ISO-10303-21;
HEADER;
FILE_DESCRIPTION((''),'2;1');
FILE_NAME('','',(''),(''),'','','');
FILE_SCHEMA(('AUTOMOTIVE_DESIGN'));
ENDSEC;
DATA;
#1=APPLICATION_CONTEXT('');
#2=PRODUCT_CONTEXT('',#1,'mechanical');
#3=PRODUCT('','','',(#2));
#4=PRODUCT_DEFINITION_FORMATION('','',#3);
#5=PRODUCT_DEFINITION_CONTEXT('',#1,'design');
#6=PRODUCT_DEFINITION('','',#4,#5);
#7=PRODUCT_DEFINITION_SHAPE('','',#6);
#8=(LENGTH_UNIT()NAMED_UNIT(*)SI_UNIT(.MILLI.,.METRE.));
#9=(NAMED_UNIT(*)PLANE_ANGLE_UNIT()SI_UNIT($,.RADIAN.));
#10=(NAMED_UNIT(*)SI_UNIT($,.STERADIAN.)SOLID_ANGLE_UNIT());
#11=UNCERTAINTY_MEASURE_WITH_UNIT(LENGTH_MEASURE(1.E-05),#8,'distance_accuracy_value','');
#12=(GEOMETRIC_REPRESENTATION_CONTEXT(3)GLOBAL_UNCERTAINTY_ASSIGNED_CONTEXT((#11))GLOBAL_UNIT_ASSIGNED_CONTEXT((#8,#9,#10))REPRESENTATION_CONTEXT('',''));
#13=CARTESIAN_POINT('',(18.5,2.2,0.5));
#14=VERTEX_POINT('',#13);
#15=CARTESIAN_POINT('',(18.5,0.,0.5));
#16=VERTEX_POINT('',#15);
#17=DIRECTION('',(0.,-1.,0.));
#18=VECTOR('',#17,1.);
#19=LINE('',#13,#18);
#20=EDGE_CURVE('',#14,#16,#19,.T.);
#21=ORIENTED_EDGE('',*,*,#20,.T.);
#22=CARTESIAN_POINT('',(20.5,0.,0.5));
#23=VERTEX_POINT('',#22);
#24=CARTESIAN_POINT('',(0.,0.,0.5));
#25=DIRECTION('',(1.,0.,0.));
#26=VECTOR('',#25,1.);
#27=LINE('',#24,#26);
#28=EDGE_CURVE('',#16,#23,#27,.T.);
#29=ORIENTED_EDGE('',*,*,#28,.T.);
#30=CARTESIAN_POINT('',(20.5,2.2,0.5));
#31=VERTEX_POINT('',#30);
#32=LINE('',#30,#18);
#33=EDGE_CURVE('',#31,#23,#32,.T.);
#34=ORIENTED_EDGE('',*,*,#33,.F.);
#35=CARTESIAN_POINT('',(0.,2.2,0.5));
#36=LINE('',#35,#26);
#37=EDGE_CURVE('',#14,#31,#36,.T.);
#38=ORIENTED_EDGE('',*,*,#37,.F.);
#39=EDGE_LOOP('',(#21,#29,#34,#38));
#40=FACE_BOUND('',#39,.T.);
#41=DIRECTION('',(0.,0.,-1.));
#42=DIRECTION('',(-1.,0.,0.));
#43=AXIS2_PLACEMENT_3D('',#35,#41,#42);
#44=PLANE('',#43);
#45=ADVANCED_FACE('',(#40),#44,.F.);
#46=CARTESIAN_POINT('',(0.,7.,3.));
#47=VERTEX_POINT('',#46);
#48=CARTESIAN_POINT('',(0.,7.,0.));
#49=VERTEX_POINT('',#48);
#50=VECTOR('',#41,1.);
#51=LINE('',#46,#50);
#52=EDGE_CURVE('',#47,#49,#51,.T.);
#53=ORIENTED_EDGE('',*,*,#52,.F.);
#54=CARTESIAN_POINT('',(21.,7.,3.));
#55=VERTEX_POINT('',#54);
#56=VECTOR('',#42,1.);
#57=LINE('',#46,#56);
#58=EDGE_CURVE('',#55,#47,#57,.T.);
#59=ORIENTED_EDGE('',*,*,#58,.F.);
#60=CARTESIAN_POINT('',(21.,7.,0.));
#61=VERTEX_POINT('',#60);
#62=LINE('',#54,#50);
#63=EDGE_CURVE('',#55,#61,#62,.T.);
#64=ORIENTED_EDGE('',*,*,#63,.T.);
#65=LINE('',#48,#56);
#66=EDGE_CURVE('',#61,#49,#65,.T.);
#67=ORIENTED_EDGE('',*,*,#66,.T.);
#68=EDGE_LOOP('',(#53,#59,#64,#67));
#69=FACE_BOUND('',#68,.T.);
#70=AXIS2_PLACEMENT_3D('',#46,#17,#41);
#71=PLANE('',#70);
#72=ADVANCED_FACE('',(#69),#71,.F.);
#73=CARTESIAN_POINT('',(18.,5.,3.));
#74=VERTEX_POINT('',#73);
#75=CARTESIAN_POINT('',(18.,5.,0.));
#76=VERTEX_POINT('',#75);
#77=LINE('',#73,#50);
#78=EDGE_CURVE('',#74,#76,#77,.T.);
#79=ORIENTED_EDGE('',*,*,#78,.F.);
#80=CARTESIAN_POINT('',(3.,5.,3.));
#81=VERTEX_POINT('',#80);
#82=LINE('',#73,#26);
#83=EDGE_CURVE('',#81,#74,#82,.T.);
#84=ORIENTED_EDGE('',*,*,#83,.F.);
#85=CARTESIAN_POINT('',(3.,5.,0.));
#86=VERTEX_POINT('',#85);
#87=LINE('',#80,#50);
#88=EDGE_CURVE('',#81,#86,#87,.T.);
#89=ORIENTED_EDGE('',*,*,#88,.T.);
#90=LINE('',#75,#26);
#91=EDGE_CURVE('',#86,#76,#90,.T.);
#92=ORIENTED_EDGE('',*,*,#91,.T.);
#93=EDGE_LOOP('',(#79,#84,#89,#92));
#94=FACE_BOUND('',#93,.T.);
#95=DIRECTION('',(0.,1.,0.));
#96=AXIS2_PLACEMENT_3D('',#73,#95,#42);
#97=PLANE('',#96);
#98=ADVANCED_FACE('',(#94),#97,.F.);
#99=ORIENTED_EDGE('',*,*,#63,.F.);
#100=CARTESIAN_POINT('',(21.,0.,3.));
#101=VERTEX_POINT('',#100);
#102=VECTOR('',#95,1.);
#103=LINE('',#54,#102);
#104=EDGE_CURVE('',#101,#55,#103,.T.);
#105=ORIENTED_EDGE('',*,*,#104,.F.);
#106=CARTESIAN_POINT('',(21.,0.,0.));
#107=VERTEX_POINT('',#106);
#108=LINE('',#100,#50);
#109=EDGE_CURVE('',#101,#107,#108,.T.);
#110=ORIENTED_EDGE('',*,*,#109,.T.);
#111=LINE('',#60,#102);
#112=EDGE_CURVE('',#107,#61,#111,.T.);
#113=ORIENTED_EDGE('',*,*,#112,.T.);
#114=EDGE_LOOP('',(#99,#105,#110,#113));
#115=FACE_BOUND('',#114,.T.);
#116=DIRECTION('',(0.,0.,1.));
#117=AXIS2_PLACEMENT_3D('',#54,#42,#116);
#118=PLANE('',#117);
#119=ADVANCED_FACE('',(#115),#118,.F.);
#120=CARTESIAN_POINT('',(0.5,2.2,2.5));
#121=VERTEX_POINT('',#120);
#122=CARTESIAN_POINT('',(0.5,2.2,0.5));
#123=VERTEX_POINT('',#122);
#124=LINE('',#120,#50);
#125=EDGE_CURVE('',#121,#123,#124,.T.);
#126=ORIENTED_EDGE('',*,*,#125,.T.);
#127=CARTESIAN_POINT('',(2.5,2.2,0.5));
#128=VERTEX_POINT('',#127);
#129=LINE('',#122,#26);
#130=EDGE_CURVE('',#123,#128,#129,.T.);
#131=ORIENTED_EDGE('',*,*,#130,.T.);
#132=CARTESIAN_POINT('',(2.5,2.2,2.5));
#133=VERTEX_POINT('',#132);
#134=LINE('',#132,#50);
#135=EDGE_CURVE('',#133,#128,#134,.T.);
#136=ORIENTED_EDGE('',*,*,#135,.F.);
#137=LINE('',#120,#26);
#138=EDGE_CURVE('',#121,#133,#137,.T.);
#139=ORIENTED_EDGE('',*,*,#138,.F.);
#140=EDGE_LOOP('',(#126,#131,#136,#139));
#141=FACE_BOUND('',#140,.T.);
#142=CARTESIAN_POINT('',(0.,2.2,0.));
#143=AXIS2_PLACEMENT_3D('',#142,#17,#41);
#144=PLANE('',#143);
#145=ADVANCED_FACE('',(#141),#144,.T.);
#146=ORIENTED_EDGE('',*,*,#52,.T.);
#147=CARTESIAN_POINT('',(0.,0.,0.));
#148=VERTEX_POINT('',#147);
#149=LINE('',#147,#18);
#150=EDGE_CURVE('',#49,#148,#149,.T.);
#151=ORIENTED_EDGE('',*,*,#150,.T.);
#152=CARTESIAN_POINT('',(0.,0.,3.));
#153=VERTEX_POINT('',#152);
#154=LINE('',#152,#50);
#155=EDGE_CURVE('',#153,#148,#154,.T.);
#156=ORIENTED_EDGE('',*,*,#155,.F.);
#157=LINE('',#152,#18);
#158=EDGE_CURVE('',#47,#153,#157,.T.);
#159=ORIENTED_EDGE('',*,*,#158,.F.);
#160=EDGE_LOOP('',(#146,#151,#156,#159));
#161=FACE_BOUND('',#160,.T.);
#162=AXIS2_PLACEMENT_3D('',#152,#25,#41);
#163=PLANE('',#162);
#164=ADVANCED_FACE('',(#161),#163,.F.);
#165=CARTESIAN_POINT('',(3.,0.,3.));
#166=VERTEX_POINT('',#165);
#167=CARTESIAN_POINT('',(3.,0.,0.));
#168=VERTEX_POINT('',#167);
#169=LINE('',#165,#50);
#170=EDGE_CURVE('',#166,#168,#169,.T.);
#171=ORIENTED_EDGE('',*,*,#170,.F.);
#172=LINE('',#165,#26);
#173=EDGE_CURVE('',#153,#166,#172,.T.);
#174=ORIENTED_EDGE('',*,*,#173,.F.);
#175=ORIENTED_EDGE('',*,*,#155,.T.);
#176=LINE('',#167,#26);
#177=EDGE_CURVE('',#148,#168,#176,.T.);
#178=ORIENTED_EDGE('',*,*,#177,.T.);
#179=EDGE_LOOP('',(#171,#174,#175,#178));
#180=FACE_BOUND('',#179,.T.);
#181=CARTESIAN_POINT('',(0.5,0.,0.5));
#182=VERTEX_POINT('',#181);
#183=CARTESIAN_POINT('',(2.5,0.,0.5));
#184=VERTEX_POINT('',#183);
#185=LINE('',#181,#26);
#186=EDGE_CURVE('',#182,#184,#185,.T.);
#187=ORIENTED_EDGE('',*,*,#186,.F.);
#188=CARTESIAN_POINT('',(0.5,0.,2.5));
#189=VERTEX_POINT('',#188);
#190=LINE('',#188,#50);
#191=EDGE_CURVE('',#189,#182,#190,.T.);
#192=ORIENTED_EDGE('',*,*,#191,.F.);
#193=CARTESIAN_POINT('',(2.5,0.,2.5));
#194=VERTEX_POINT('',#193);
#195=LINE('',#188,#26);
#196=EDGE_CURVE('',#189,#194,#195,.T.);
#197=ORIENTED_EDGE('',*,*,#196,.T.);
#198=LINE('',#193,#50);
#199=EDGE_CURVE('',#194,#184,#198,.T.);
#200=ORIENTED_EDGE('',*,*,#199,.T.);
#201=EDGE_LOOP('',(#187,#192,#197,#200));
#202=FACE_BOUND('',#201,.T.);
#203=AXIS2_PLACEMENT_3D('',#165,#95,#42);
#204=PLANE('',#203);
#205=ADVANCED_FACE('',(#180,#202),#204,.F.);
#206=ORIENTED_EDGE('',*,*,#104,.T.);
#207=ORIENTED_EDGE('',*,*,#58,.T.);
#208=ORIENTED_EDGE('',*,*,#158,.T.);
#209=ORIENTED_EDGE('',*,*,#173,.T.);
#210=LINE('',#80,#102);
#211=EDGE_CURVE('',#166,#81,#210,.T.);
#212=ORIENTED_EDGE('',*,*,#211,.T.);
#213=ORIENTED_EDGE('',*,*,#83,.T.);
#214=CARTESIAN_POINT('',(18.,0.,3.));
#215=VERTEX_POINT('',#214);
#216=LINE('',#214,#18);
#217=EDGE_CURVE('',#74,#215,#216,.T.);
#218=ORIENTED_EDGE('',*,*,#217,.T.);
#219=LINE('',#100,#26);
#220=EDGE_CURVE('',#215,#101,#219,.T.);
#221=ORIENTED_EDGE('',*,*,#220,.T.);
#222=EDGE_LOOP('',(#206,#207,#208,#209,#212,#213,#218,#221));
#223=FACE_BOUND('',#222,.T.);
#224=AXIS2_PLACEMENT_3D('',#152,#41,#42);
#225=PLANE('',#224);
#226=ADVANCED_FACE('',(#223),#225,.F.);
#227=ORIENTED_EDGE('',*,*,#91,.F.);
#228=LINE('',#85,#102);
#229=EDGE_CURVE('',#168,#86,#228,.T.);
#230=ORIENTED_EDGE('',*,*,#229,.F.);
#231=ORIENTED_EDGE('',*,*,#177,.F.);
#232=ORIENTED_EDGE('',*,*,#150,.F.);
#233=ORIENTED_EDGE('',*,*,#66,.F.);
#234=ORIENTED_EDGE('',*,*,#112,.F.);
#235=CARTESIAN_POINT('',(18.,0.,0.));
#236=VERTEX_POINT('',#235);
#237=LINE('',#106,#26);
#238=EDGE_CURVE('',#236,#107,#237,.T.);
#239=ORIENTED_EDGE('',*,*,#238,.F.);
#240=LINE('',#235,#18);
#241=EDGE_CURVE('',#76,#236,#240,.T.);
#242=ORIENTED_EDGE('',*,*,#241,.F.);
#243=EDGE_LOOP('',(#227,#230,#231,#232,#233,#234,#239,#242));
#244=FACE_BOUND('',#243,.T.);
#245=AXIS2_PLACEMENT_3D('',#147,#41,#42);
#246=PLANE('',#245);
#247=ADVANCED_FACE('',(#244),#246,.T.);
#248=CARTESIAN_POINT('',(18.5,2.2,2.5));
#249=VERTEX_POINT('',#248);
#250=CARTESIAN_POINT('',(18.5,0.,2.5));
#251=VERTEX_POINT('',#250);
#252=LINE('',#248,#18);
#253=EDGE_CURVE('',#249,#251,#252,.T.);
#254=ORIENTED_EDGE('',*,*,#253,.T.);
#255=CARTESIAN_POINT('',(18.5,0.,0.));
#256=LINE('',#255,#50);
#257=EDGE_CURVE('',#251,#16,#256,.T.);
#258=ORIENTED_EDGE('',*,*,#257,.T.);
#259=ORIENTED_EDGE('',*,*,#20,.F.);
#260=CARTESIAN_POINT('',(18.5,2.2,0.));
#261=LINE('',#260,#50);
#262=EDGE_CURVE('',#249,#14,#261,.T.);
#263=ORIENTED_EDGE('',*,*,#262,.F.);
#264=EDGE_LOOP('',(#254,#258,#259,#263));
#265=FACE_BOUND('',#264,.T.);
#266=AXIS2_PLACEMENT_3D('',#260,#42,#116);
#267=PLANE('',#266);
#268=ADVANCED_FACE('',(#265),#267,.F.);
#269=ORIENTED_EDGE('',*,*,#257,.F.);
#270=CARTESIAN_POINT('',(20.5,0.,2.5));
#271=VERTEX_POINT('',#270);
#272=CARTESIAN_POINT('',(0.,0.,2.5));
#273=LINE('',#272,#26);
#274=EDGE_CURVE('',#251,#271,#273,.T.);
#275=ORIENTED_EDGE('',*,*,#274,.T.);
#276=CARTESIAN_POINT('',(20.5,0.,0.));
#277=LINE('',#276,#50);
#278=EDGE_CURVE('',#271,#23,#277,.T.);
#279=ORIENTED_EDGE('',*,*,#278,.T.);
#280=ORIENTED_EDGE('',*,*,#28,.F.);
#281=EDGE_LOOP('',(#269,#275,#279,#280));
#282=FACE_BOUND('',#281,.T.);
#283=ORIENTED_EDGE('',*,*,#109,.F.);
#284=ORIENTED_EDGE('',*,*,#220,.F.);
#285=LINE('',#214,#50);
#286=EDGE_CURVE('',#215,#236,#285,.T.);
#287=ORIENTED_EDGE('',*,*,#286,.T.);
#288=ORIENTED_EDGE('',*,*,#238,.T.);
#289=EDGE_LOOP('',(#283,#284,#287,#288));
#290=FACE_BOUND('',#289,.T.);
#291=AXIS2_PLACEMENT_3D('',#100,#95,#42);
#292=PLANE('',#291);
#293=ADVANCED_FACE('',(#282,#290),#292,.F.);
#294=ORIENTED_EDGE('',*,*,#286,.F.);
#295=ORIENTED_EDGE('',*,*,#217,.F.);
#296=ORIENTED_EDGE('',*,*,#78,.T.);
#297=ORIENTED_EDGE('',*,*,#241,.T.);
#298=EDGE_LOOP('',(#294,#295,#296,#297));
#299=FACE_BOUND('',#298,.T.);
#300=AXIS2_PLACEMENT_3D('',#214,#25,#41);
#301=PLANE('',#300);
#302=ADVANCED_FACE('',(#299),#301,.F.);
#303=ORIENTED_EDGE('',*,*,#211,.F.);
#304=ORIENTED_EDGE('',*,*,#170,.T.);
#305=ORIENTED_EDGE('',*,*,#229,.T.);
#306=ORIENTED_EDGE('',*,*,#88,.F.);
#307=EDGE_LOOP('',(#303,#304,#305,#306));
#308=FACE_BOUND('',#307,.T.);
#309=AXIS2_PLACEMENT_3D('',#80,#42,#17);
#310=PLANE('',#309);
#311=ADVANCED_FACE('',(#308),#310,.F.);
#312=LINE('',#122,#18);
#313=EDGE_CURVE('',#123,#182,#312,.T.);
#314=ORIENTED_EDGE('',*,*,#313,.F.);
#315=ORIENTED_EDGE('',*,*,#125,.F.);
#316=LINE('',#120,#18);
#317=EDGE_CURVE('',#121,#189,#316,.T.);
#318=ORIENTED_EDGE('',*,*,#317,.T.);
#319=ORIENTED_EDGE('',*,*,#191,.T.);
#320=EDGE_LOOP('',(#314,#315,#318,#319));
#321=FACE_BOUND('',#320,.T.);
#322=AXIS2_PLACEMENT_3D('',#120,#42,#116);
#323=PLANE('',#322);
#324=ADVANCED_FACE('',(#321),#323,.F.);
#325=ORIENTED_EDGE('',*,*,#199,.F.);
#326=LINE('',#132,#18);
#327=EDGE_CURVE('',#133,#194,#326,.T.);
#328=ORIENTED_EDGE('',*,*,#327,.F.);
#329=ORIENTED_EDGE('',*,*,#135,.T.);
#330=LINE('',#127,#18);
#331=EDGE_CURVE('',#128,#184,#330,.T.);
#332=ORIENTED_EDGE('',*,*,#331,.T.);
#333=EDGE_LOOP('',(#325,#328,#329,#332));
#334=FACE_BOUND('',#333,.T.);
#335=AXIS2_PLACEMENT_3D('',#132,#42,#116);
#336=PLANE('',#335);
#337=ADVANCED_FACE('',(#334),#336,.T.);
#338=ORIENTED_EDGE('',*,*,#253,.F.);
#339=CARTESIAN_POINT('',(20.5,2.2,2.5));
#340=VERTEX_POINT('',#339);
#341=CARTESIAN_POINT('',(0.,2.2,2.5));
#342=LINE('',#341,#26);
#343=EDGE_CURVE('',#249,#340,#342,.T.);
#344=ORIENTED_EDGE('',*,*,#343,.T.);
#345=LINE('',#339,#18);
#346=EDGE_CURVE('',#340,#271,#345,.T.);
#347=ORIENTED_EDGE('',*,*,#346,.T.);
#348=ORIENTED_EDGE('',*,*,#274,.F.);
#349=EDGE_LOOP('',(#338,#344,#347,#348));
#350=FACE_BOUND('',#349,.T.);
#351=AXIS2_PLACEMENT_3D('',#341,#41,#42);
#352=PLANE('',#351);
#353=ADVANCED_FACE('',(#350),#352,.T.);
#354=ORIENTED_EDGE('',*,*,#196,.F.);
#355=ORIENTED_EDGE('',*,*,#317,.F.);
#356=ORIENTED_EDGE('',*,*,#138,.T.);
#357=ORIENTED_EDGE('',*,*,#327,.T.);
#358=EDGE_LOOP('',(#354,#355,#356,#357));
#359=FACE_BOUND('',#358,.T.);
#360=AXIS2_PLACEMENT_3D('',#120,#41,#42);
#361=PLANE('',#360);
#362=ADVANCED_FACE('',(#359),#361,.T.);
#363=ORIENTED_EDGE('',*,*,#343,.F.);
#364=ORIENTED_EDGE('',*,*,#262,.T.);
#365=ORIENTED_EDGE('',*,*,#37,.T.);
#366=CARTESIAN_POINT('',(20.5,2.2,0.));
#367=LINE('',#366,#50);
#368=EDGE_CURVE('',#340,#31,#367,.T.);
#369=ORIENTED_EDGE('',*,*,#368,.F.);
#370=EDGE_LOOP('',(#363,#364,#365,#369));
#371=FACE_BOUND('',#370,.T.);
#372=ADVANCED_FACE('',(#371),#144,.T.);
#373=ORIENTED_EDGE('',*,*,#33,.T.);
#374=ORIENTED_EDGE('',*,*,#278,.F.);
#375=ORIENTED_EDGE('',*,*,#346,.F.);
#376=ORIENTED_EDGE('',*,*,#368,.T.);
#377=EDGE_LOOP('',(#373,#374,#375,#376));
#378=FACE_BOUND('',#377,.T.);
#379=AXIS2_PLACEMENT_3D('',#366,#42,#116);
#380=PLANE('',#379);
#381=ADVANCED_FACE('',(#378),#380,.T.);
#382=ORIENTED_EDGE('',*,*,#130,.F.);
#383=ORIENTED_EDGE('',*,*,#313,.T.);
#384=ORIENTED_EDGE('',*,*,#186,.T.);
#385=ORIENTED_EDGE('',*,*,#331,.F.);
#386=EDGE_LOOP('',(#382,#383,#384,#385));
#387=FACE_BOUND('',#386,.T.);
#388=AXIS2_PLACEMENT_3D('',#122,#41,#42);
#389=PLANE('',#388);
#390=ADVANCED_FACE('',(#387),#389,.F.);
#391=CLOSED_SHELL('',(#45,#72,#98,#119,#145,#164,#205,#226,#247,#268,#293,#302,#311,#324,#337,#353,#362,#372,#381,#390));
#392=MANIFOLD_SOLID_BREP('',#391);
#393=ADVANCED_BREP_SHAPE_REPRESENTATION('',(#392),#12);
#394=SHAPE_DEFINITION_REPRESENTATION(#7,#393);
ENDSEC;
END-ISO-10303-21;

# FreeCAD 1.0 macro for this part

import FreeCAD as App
import Part
import Sketcher


def add_polygon(sketch, points):
    """Adds a closed chain of lines whose ends are joined by coincident constraints."""
    first, n = sketch.GeometryCount, len(points)
    for a, b in zip(points, points[1:] + points[:1]):
        sketch.addGeometry(Part.LineSegment(App.Vector(*a, 0), App.Vector(*b, 0)), False)
    for i in range(n):
        sketch.addConstraint(Sketcher.Constraint("Coincident", first + i, 2, first + (i + 1) % n, 1))

doc = App.newDocument("Part")
params = doc.addObject("Spreadsheet::Sheet", "Params")
for row, (alias, value) in enumerate([
    ("sketch1_width", "3 mm"),
    ("sketch1_width2", "15 mm"),
    ("sketch1_height", "7 mm"),
    ("sketch1_height2", "5 mm"),
    ("pad1_length", "3 mm"),
    ("sketch2_width", "2 mm"),
    ("pocket1_length", "2.2 mm"),
], start=1):
    params.set(f"A{row}", alias)
    params.set(f"B{row}", "=" + value)
    params.setAlias(f"B{row}", alias)

body = doc.addObject("PartDesign::Body", "Body")

# Sketch on XY plane
sketch1 = body.newObject("Sketcher::SketchObject", "Sketch")
sketch1.AttachmentSupport = (doc.getObject("XY_Plane"), [""])
sketch1.MapMode = "FlatFace"
add_polygon(sketch1, [(0, 7), (0, 0), (3, 0), (3, 5), (18, 5), (18, 0), (21, 0), (21, 7)])  # lines 0-7
sketch1.addConstraint([
    Sketcher.Constraint("Vertical", 0),
    Sketcher.Constraint("Horizontal", 1),
    Sketcher.Constraint("Vertical", 2),
    Sketcher.Constraint("Horizontal", 3),
    Sketcher.Constraint("Vertical", 4),
    Sketcher.Constraint("Horizontal", 5),
    Sketcher.Constraint("Vertical", 6),
    Sketcher.Constraint("Horizontal", 7),
    Sketcher.Constraint("Coincident", 0, 2, -1, 1),
    Sketcher.Constraint("PointOnObject", 4, 2, -1),
    Sketcher.Constraint("Equal", 1, 5),
    Sketcher.Constraint("DistanceX", 1, 1, 1, 2, 3.0),
    Sketcher.Constraint("DistanceX", 3, 1, 3, 2, 15.0),
    Sketcher.Constraint("DistanceY", 0, 2, 0, 1, 7.0),
    Sketcher.Constraint("DistanceY", 2, 1, 2, 2, 5.0),
])
sketch1.setExpression("Constraints[19]", "Params.sketch1_width")
sketch1.setExpression("Constraints[20]", "Params.sketch1_width2")
sketch1.setExpression("Constraints[21]", "Params.sketch1_height")
sketch1.setExpression("Constraints[22]", "Params.sketch1_height2")
pad1 = body.newObject("PartDesign::Pad", "Pad")
pad1.Profile = sketch1
pad1.setExpression("Length", "Params.pad1_length")

# Sketch on XZ plane
sketch2 = body.newObject("Sketcher::SketchObject", "Sketch001")
sketch2.AttachmentSupport = (doc.getObject("XZ_Plane"), [""])
sketch2.MapMode = "FlatFace"
add_polygon(sketch2, [(18.5, 2.5), (18.5, 0.5), (20.5, 0.5), (20.5, 2.5)])  # lines 0-3
add_polygon(sketch2, [(0.5, 2.5), (0.5, 0.5), (2.5, 0.5), (2.5, 2.5)])  # lines 4-7
sketch2.addConstraint([
    Sketcher.Constraint("Vertical", 0),
    Sketcher.Constraint("Horizontal", 1),
    Sketcher.Constraint("Vertical", 2),
    Sketcher.Constraint("Horizontal", 3),
    Sketcher.Constraint("Vertical", 4),
    Sketcher.Constraint("Horizontal", 5),
    Sketcher.Constraint("Vertical", 6),
    Sketcher.Constraint("Horizontal", 7),
    Sketcher.Constraint("Horizontal", 1, 2, 4, 2),
    Sketcher.Constraint("Horizontal", 3, 2, 6, 2),
    Sketcher.Constraint("Equal", 3, 5),
    Sketcher.Constraint("Equal", 7, 0),
    Sketcher.Constraint("DistanceX", 1, 1, 1, 2, 2.0),
    Sketcher.Constraint("DistanceX", 4, 2, 0, 2, 18.0),
    Sketcher.Constraint("DistanceX", -1, 1, 0, 2, 18.5),
    Sketcher.Constraint("DistanceY", -1, 1, 0, 2, 0.5),
])
sketch2.setExpression("Constraints[20]", "Params.sketch2_width")
pocket1 = body.newObject("PartDesign::Pocket", "Pocket")
pocket1.Profile = sketch2
pocket1.setExpression("Length", "Params.pocket1_length")

doc.recompute()
